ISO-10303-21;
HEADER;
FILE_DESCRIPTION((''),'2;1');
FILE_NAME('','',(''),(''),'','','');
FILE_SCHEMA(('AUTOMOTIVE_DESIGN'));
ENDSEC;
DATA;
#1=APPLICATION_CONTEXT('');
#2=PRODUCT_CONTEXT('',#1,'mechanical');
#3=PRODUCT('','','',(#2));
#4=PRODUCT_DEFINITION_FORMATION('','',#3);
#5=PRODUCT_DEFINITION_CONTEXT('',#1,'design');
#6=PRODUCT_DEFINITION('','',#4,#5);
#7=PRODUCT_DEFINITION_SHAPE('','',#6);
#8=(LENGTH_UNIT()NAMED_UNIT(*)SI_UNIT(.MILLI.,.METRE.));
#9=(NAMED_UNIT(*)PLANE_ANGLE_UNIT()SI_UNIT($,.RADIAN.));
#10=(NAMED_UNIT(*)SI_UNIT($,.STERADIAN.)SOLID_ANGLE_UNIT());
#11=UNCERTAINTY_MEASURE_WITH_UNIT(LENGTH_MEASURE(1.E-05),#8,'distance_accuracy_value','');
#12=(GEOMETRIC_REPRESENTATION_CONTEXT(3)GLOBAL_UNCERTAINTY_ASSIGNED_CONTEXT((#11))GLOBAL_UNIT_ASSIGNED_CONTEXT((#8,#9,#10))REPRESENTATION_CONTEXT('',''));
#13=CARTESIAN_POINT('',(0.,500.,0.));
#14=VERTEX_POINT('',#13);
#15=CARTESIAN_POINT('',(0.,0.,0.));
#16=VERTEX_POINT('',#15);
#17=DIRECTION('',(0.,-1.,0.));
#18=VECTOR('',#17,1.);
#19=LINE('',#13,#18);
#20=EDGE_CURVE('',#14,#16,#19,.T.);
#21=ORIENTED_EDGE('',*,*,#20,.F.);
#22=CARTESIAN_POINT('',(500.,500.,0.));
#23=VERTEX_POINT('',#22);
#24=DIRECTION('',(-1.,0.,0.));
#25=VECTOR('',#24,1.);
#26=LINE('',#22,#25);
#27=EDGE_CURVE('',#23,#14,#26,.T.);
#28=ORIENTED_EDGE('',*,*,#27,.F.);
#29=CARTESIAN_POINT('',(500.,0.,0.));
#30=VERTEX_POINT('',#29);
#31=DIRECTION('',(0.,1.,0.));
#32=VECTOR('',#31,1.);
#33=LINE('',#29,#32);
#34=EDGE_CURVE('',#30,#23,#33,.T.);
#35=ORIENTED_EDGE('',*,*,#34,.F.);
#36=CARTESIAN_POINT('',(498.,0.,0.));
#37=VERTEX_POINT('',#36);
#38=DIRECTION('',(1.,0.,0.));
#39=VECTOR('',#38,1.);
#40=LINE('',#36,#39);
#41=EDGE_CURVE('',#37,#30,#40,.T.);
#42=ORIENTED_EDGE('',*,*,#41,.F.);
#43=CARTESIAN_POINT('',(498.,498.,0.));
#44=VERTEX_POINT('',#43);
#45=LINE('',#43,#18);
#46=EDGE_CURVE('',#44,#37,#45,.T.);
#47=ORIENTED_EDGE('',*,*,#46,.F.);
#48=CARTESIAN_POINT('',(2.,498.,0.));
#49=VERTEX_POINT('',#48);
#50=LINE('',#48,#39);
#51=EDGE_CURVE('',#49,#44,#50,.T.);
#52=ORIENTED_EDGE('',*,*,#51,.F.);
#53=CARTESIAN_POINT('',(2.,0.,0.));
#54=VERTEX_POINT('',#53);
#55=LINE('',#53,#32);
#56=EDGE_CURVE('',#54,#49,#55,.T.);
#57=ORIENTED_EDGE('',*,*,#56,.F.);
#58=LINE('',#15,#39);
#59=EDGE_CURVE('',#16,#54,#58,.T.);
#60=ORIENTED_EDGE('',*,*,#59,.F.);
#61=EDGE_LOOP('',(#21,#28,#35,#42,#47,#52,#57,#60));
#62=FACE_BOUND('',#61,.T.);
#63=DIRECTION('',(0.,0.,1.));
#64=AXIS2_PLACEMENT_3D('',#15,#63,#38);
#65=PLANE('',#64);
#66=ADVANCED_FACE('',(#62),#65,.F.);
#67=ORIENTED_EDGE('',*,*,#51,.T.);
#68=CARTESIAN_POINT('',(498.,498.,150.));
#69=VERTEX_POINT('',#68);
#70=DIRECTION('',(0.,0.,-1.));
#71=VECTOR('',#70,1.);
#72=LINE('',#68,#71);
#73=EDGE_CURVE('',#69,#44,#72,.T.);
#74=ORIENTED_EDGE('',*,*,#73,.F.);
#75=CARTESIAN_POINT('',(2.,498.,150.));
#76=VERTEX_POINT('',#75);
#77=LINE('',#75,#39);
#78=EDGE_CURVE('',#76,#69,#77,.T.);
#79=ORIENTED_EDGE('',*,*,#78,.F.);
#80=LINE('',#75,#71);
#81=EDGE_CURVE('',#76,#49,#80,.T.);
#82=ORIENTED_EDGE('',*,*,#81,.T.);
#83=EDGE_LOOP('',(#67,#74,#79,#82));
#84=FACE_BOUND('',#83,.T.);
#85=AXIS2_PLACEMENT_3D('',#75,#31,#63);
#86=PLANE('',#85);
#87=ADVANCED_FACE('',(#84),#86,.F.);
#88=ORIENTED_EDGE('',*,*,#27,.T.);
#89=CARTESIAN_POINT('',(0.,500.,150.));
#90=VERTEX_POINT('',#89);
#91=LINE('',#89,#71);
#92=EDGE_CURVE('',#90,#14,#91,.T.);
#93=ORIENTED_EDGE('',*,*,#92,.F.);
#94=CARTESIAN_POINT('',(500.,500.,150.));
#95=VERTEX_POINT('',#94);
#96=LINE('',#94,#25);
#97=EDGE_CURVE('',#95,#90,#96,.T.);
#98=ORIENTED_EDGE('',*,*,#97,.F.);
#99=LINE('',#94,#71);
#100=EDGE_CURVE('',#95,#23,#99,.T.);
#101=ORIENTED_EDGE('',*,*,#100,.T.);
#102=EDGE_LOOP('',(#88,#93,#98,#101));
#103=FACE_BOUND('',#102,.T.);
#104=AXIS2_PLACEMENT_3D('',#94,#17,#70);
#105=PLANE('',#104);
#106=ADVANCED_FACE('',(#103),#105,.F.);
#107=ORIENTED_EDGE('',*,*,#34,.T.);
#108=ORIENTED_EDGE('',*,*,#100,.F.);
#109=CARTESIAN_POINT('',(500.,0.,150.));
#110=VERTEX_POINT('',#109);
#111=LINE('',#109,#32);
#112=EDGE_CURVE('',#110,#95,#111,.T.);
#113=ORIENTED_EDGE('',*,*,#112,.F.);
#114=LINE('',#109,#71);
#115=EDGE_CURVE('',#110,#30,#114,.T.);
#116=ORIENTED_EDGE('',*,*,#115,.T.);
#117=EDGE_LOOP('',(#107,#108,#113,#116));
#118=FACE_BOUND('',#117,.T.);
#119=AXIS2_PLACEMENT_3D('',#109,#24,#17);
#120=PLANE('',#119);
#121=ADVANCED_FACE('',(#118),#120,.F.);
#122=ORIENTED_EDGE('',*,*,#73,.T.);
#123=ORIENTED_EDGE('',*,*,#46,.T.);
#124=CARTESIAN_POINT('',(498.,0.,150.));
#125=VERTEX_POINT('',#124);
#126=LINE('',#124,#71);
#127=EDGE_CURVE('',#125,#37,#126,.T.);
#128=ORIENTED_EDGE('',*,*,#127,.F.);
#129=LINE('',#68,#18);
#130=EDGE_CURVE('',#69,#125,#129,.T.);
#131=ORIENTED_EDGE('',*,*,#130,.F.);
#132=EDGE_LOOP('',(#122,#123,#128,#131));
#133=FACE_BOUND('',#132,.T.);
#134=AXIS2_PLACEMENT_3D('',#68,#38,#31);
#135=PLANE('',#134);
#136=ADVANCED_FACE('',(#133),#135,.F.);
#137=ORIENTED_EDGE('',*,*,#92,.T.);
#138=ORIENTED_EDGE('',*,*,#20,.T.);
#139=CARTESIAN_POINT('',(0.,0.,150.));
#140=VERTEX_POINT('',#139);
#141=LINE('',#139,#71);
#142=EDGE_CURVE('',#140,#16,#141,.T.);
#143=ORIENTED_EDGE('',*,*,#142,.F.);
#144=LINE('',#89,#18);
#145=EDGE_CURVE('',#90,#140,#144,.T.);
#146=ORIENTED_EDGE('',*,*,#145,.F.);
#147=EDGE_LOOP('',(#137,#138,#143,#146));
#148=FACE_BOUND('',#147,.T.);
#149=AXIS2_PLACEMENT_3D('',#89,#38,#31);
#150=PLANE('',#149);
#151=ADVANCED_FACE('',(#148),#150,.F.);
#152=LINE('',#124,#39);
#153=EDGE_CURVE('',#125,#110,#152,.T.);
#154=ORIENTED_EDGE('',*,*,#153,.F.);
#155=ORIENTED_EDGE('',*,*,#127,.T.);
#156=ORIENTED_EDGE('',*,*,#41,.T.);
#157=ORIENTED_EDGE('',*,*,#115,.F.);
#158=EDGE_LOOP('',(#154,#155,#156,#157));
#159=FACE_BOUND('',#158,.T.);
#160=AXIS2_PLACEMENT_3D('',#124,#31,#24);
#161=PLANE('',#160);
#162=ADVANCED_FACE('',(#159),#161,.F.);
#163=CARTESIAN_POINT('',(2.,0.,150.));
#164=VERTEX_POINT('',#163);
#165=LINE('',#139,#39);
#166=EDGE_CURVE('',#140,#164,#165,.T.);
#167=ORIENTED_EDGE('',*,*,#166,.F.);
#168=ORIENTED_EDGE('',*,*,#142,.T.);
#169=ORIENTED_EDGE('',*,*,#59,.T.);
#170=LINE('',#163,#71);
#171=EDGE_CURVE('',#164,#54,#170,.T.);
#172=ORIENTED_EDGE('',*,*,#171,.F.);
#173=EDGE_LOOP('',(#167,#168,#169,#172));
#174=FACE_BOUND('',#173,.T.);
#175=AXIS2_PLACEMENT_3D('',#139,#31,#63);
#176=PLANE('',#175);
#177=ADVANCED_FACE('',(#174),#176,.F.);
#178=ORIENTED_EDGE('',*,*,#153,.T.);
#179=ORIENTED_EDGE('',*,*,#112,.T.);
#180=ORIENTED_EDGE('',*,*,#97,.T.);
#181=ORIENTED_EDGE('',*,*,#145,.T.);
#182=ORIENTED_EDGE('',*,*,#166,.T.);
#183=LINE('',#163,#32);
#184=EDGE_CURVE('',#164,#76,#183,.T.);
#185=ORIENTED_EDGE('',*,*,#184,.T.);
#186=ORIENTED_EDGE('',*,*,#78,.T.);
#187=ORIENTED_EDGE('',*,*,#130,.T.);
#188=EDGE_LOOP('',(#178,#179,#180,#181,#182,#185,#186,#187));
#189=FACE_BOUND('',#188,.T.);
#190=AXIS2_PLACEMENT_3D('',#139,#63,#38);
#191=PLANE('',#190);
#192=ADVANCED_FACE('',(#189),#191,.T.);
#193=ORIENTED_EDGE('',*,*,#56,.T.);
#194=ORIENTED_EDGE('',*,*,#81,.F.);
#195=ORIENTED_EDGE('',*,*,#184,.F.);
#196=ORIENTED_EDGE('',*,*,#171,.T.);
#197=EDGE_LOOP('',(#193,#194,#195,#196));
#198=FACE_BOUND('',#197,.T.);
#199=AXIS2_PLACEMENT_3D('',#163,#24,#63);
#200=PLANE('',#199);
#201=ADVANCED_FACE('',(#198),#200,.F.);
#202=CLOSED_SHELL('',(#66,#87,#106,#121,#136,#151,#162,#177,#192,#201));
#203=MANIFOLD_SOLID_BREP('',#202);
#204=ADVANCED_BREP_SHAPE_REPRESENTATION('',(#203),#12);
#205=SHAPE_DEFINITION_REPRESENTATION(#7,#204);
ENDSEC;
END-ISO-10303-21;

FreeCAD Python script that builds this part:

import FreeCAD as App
import Part
import Sketcher
from FreeCAD import Vector
Q = App.Units.Quantity


def add_polygon(sketch, points):
    """Adds a closed chain of lines whose ends are joined by coincident constraints."""
    first, n = sketch.GeometryCount, len(points)
    for a, b in zip(points, points[1:] + points[:1]):
        sketch.addGeometry(Part.LineSegment(App.Vector(*a, 0), App.Vector(*b, 0)), False)
    for i in range(n):
        sketch.addConstraint(Sketcher.Constraint("Coincident", first + i, 2, first + (i + 1) % n, 1))

doc = App.newDocument("Part")
params = doc.addObject("Spreadsheet::Sheet", "Params")
for row, (alias, value) in enumerate([
    ("sketch1_width", "2 mm"),
    ("sketch1_width2", "496 mm"),
    ("sketch1_height", "498 mm"),
    ("pad1_length", "150 mm"),
], start=1):
    params.set(f"A{row}", alias)
    params.set(f"B{row}", "=" + value)
    params.setAlias(f"B{row}", alias)

body = doc.addObject("PartDesign::Body", "Body")

sketch1 = doc.addObject("Sketcher::SketchObject", "Sketch")
body.addObject(sketch1)
sketch1.AttachmentSupport = (doc.XY_Plane, [""])
sketch1.MapMode = "FlatFace"
add_polygon(sketch1, [(0, 0), (2, 0), (2, 498), (498, 498), (498, 0), (500, 0), (500, 500), (0, 500)])
sketch1.addConstraint(Sketcher.Constraint("Horizontal", 0))
sketch1.addConstraint(Sketcher.Constraint("Vertical", 1))
sketch1.addConstraint(Sketcher.Constraint("Horizontal", 2))
sketch1.addConstraint(Sketcher.Constraint("Vertical", 3))
sketch1.addConstraint(Sketcher.Constraint("Horizontal", 4))
sketch1.addConstraint(Sketcher.Constraint("Vertical", 5))
sketch1.addConstraint(Sketcher.Constraint("Horizontal", 6))
sketch1.addConstraint(Sketcher.Constraint("Vertical", 7))
sketch1.addConstraint(Sketcher.Constraint("Coincident", 7, 2, -1, 1))
sketch1.addConstraint(Sketcher.Constraint("PointOnObject", 3, 2, -1))
sketch1.addConstraint(Sketcher.Constraint("Equal", 0, 4))
sketch1.addConstraint(Sketcher.Constraint("Equal", 6, 5))
sketch1.addConstraint(Sketcher.Constraint("DistanceX", 0, 1, 0, 2, Q("2 mm")))
sketch1.addConstraint(Sketcher.Constraint("DistanceX", 2, 1, 2, 2, Q("496 mm")))
sketch1.addConstraint(Sketcher.Constraint("DistanceY", 1, 1, 1, 2, Q("498 mm")))
sketch1.setExpression("Constraints[20]", "Params.sketch1_width")
sketch1.setExpression("Constraints[21]", "Params.sketch1_width2")
sketch1.setExpression("Constraints[22]", "Params.sketch1_height")
pad1 = doc.addObject("PartDesign::Pad", "Pad")
body.addObject(pad1)
pad1.Profile = sketch1
pad1.setExpression("Length", "Params.pad1_length")

doc.recompute()
